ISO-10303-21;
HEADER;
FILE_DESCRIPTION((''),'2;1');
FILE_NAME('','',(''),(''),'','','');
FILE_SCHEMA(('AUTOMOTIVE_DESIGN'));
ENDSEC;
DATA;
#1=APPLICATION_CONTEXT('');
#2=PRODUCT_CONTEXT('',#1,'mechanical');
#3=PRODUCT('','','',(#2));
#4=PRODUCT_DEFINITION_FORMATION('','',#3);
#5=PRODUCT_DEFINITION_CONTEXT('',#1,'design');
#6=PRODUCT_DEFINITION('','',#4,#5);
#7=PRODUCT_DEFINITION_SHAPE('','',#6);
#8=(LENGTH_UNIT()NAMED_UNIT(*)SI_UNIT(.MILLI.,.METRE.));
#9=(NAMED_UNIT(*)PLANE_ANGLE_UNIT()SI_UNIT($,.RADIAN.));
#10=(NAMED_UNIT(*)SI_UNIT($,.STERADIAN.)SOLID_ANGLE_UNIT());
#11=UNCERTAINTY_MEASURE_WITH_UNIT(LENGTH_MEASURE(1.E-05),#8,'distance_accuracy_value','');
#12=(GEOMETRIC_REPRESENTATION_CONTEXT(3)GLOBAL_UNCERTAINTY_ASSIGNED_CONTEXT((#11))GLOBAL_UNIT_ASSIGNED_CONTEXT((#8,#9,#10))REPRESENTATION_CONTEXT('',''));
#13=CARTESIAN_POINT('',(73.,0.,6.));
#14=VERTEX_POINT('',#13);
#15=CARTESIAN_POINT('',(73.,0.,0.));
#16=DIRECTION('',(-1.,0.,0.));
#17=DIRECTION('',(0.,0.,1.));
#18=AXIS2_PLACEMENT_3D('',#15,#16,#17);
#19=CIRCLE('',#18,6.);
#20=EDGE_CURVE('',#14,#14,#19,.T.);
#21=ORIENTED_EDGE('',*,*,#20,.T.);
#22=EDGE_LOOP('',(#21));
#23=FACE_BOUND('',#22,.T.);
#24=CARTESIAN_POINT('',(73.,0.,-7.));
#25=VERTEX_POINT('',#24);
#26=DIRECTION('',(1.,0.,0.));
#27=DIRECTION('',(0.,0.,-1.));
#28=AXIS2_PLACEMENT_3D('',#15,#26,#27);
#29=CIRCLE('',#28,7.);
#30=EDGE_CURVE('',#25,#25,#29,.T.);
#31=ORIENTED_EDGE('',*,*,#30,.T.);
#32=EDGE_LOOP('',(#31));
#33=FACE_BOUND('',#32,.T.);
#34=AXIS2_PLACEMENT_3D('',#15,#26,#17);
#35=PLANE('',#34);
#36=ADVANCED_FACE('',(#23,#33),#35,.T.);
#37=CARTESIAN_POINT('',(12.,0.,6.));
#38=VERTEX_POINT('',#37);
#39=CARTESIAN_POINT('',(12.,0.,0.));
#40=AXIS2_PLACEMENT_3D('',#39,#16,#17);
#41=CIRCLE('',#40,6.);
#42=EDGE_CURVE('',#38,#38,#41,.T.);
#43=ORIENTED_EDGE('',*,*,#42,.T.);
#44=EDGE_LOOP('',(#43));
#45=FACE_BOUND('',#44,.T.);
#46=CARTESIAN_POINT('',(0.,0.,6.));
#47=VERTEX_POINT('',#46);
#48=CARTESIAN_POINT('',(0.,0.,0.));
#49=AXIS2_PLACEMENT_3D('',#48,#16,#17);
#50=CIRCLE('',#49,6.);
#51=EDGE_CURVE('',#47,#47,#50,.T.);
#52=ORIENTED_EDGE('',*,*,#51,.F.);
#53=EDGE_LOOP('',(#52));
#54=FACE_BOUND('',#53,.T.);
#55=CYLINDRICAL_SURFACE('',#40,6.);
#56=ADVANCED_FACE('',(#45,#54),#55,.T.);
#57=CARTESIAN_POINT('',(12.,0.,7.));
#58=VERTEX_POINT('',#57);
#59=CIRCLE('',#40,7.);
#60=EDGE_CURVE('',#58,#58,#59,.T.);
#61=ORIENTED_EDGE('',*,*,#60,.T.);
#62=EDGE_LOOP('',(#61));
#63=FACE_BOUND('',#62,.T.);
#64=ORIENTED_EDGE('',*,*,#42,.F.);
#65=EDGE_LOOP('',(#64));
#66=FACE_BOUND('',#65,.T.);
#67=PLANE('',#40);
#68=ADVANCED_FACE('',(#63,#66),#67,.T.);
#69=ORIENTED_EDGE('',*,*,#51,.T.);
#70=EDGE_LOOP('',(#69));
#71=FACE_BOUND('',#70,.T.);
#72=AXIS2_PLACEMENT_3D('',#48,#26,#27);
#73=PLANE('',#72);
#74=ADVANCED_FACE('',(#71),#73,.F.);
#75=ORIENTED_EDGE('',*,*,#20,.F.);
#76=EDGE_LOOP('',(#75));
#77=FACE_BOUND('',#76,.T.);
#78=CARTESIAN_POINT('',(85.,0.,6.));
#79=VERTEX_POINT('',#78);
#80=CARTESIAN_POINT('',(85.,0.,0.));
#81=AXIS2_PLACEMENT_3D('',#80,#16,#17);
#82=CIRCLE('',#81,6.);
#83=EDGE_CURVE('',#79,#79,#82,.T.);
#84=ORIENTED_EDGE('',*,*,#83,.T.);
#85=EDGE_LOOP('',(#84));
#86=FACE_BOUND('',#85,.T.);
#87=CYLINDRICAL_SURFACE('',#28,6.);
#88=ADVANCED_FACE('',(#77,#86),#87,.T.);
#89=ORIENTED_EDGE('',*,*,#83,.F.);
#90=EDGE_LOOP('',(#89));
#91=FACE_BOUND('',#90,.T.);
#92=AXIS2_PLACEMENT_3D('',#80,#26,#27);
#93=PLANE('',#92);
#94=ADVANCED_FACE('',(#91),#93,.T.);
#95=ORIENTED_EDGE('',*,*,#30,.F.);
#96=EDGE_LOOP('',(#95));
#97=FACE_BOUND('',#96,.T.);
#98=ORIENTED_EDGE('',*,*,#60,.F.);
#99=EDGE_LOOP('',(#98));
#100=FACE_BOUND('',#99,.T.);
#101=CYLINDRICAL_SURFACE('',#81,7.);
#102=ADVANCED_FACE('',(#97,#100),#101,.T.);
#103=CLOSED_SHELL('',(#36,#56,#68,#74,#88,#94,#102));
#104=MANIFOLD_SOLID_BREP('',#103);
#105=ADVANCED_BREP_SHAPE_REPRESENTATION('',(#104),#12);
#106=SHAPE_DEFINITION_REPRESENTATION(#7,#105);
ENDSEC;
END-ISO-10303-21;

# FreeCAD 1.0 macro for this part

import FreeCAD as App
import Part
import Sketcher
from FreeCAD import Vector
Q = App.Units.Quantity

doc = App.newDocument("Part")
params = doc.addObject("Spreadsheet::Sheet", "Params")
for row, (alias, value) in enumerate([
    ("sketch1_diameter", "14 mm"),
    ("pad1_length", "85 mm"),
    ("sketch2_diameter", "15 mm"),
    ("sketch2_diameter2", "12 mm"),
    ("pocket1_length", "12 mm"),
], start=1):
    params.set(f"A{row}", alias)
    params.set(f"B{row}", "=" + value)
    params.setAlias(f"B{row}", alias)

body = doc.addObject("PartDesign::Body", "Body")

sketch1 = body.newObject("Sketcher::SketchObject", "Sketch")
sketch1.AttachmentSupport = (doc.getObject("YZ_Plane"), [""])
sketch1.MapMode = "FlatFace"
sketch1.addGeometry(Part.Circle(Vector(0, 0, 0), Vector(0, 0, 1), 7), False)
sketch1.addConstraint([
    Sketcher.Constraint("Coincident", 0, 3, -1, 1),
    Sketcher.Constraint("Diameter", 0, Q("14 mm")),
])
sketch1.setExpression("Constraints[1]", "Params.sketch1_diameter")
pad1 = body.newObject("PartDesign::Pad", "Pad")
pad1.Profile = sketch1
pad1.setExpression("Length", "Params.pad1_length")

sketch2 = body.newObject("Sketcher::SketchObject", "Sketch001")
sketch2.AttachmentSupport = (doc.getObject("YZ_Plane"), [""])
sketch2.MapMode = "FlatFace"
sketch2.addGeometry([
    Part.Circle(Vector(0, 0, 0), Vector(0, 0, 1), 8),
    Part.Circle(Vector(0, 0, 0), Vector(0, 0, 1), 6),
], False)
sketch2.addConstraint([
    Sketcher.Constraint("Coincident", 0, 3, -1, 1),
    Sketcher.Constraint("Coincident", 1, 3, -1, 1),
    Sketcher.Constraint("Diameter", 0, Q("15 mm")),
    Sketcher.Constraint("Diameter", 1, Q("12 mm")),
])
sketch2.setExpression("Constraints[2]", "Params.sketch2_diameter")
sketch2.setExpression("Constraints[3]", "Params.sketch2_diameter2")
pocket1 = body.newObject("PartDesign::Pocket", "Pocket")
pocket1.Profile = sketch2
pocket1.setExpression("Length", "Params.pocket1_length")
pocket1.Reversed = True
doc.recompute()

datumplane = body.newObject("PartDesign::Plane", "DatumPlane")
datumplane.AttachmentSupport = (doc.getObject("YZ_Plane"), [""])
datumplane.MapMode = "FlatFace"
datumplane.AttachmentOffset = App.Placement(Vector(0, 0, 42.5), App.Rotation())
mirrored = body.newObject("PartDesign::Mirrored", "Mirrored")
mirrored.Originals = [pocket1]
mirrored.MirrorPlane = (datumplane, [""])
body.Tip = mirrored

doc.recompute()
